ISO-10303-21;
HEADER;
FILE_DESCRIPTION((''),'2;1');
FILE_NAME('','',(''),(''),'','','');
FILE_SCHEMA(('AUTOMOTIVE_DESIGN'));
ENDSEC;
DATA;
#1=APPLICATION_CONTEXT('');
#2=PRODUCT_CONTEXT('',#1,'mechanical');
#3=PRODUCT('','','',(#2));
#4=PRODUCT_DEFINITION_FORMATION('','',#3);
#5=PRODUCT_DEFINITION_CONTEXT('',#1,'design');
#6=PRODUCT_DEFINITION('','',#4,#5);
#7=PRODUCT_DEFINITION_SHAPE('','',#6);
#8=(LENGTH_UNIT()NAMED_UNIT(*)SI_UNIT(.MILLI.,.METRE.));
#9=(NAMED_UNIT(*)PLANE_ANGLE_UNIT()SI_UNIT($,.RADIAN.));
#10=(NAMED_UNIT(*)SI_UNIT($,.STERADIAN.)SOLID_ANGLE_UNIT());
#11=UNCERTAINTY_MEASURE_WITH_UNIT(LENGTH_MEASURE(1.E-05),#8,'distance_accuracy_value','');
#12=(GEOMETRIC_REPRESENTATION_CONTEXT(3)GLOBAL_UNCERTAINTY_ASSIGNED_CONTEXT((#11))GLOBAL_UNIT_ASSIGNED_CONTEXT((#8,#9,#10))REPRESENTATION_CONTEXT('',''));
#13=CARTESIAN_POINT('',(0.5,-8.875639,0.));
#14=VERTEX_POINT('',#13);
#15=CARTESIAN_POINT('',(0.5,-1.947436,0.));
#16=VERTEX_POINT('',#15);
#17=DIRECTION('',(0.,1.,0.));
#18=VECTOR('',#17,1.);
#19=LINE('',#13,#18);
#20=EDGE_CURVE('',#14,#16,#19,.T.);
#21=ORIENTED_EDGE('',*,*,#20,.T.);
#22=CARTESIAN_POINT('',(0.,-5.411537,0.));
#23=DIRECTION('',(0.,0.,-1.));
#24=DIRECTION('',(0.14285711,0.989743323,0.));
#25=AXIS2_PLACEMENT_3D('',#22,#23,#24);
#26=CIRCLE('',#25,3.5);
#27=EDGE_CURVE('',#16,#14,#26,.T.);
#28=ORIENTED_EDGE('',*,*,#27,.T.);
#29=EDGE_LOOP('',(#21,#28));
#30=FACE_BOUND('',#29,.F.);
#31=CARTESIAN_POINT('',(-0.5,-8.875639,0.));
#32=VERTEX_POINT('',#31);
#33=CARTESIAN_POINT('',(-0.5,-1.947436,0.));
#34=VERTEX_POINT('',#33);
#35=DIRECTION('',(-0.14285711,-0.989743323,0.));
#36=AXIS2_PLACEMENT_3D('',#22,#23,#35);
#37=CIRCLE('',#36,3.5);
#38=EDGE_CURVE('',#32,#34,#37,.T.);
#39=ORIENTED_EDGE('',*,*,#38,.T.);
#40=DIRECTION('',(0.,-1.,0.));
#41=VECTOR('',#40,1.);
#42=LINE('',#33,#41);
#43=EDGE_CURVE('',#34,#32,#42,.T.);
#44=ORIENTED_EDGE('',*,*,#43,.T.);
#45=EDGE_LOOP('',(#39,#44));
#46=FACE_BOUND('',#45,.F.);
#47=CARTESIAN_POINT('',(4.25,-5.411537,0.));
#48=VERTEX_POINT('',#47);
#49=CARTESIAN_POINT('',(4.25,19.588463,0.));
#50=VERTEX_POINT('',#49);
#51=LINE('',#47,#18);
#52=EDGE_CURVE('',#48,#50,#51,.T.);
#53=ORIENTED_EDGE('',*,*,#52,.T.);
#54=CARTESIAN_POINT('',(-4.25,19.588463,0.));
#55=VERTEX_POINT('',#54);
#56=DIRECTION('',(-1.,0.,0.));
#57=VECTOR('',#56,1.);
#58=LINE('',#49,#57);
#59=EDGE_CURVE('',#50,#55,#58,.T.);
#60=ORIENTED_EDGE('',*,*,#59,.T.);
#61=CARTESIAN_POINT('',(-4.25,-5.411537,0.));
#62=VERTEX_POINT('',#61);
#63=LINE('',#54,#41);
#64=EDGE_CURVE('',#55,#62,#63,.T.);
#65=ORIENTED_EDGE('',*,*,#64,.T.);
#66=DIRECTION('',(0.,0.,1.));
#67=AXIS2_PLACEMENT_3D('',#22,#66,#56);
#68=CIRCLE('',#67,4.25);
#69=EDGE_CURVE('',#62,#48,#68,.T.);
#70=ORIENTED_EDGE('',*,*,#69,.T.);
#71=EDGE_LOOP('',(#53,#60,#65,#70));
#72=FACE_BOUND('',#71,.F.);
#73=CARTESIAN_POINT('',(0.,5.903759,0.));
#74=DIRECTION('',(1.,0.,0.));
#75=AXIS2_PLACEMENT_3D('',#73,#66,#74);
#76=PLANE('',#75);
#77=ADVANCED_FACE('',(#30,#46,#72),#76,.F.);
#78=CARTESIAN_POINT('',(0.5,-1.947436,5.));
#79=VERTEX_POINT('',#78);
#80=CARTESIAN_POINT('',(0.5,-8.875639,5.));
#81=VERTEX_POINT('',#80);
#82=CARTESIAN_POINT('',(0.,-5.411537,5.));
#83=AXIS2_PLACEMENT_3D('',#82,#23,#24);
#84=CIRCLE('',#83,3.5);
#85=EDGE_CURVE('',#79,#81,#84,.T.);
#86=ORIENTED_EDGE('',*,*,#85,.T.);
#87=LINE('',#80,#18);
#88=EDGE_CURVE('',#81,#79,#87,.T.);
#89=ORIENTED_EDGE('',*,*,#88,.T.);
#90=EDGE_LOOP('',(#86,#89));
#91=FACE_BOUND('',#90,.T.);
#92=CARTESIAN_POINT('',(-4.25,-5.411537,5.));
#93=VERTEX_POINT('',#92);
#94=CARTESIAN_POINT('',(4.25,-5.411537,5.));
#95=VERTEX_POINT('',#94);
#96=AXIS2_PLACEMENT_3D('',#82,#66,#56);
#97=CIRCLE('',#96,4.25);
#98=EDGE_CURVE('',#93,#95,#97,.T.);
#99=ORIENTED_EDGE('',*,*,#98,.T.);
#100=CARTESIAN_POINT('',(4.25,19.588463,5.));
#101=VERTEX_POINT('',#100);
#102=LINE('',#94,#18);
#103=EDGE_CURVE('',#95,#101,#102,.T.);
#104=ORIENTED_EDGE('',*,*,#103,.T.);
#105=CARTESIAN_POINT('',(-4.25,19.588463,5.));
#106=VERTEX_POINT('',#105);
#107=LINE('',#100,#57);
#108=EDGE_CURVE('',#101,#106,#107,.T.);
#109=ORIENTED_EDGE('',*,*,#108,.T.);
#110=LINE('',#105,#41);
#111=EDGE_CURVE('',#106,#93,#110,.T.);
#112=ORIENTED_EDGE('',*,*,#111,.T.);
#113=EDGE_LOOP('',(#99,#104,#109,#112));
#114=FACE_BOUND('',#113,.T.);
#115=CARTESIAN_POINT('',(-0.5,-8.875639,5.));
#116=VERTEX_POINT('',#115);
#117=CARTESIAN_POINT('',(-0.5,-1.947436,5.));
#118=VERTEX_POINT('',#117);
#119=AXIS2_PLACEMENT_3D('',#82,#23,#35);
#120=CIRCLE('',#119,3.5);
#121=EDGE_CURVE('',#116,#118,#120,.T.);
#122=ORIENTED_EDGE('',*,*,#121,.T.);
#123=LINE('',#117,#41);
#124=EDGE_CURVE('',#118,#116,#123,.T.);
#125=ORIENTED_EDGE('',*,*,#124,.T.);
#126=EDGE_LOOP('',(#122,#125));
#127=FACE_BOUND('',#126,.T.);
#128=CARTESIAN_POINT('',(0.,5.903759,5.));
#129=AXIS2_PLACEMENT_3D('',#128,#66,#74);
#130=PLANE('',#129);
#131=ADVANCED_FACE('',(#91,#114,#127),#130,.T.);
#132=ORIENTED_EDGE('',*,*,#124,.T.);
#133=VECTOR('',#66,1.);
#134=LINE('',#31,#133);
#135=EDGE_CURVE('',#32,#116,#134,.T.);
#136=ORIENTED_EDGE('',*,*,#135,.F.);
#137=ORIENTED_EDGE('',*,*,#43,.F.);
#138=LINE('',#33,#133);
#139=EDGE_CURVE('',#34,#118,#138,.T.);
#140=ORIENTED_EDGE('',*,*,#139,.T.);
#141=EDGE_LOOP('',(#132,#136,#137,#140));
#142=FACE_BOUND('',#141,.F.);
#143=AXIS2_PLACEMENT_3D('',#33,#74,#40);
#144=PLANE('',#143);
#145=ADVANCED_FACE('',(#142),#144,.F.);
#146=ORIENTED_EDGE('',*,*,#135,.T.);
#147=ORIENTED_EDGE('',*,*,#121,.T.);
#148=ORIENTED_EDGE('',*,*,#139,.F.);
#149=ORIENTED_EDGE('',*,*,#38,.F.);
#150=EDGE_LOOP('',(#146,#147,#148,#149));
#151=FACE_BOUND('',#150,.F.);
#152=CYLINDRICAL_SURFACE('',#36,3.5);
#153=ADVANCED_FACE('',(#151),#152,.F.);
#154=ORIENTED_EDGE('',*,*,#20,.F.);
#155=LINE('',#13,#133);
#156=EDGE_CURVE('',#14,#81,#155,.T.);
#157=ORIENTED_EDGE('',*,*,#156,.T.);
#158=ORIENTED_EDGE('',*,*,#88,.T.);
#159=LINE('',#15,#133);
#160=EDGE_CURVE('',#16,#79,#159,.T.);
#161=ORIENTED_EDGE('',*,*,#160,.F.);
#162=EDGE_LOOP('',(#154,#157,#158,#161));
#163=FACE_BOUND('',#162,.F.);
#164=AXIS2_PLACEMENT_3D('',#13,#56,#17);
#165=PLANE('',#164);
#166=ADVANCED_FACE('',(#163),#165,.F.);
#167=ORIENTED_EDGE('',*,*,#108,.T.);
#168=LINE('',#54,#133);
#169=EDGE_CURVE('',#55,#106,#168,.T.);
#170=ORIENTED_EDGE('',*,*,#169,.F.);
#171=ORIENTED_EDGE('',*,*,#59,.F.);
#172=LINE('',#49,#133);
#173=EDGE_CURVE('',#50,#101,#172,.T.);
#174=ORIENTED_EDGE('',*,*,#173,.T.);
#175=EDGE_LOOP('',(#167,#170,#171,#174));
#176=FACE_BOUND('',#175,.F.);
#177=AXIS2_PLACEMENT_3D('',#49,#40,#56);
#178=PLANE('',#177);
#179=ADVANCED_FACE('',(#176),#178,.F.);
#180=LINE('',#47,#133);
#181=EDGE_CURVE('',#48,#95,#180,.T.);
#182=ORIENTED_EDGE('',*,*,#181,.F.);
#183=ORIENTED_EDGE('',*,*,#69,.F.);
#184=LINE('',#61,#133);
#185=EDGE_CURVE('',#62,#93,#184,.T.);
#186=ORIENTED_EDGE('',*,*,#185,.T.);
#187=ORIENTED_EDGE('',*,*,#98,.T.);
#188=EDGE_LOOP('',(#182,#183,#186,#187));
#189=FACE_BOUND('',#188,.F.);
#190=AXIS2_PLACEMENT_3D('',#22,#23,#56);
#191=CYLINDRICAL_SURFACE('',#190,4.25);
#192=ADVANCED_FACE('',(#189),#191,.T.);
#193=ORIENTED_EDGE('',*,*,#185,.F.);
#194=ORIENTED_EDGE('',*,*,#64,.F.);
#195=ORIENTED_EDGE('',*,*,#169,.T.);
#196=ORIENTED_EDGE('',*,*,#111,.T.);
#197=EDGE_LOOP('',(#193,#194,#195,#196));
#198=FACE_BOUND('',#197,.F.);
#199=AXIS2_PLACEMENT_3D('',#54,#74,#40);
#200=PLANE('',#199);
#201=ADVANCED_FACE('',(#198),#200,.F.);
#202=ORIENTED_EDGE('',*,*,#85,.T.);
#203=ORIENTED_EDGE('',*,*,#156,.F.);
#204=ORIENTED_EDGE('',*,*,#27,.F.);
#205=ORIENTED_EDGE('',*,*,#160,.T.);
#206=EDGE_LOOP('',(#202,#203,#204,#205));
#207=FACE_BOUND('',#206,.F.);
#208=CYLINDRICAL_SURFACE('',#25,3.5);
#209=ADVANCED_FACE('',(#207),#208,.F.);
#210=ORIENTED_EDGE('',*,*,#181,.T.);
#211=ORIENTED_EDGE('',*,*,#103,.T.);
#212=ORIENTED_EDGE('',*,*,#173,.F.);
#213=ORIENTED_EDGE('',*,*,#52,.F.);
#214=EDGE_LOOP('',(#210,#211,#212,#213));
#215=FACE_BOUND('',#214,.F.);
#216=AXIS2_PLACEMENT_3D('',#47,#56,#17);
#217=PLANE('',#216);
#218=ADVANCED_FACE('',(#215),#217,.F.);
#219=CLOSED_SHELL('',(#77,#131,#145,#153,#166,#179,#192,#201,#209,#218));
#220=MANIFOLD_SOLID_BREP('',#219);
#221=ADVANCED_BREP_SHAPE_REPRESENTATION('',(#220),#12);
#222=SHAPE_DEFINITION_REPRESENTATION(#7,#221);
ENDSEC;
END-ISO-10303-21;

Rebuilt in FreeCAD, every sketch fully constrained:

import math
import FreeCAD as App
import Part
import Sketcher

V = App.Vector

doc = App.newDocument("Part")
body = doc.addObject("PartDesign::Body", "Body")

# Sketch on XY plane
sketch1 = body.newObject("Sketcher::SketchObject", "Sketch")
sketch1.AttachmentSupport = (doc.getObject("XY_Plane"), [""])
sketch1.MapMode = "FlatFace"
sketch1.addGeometry([
    Part.LineSegment(V(-4.25, 19.588463, 0), V(-4.25, -5.411537, 0)),  # 0
    Part.ArcOfCircle(Part.Circle(V(0, -5.411537, 0), V(0, 0, 1), 4.25), math.radians(180), math.radians(360)),  # 1
    Part.LineSegment(V(4.25, -5.411537, 0), V(4.25, 19.588463, 0)),  # 2
    Part.LineSegment(V(4.25, 19.588463, 0), V(-4.25, 19.588463, 0)),  # 3
    Part.ArcOfCircle(Part.Circle(V(0, -5.411537, 0), V(0, 0, 1), 3.5), math.radians(98.213209), math.radians(261.786791)),  # 4
    Part.LineSegment(V(-0.5, -1.947436, 0), V(-0.5, -8.875639, 0)),  # 5
    Part.LineSegment(V(0.5, -8.875639, 0), V(0.5, -1.947436, 0)),  # 6
    Part.ArcOfCircle(Part.Circle(V(0, -5.411537, 0), V(0, 0, 1), 3.5), math.radians(-81.786791), math.radians(81.786791)),  # 7
], False)
sketch1.addConstraint([
    Sketcher.Constraint("Tangent", 0, 2, 1, 1),
    Sketcher.Constraint("Tangent", 1, 2, 2, 1),
    Sketcher.Constraint("Coincident", 2, 2, 3, 1),
    Sketcher.Constraint("Coincident", 3, 2, 0, 1),
    Sketcher.Constraint("Coincident", 4, 1, 5, 1),
    Sketcher.Constraint("Coincident", 5, 2, 4, 2),
    Sketcher.Constraint("Coincident", 6, 1, 7, 1),
    Sketcher.Constraint("Coincident", 7, 2, 6, 2),
    Sketcher.Constraint("Vertical", 0),
    Sketcher.Constraint("Vertical", 2),
    Sketcher.Constraint("Horizontal", 3),
    Sketcher.Constraint("Vertical", 5),
    Sketcher.Constraint("Vertical", 6),
    Sketcher.Constraint("Coincident", 4, 3, 1, 3),
    Sketcher.Constraint("Coincident", 7, 3, 1, 3),
    Sketcher.Constraint("Equal", 4, 7),
    Sketcher.Constraint("Symmetric", 5, 2, 6, 1, -2),
    Sketcher.Constraint("Radius", 4, 3.5),
    Sketcher.Constraint("DistanceY", 0, 2, 0, 1, 25.0),
    Sketcher.Constraint("Radius", 1, 4.25),
    Sketcher.Constraint("DistanceX", 5, 2, 6, 1, 1.0),
    Sketcher.Constraint("DistanceY", 5, 2, -1, 1, 8.875639),
])
pad1 = body.newObject("PartDesign::Pad", "Pad")
pad1.Profile = sketch1
pad1.Length = 5

doc.recompute()
